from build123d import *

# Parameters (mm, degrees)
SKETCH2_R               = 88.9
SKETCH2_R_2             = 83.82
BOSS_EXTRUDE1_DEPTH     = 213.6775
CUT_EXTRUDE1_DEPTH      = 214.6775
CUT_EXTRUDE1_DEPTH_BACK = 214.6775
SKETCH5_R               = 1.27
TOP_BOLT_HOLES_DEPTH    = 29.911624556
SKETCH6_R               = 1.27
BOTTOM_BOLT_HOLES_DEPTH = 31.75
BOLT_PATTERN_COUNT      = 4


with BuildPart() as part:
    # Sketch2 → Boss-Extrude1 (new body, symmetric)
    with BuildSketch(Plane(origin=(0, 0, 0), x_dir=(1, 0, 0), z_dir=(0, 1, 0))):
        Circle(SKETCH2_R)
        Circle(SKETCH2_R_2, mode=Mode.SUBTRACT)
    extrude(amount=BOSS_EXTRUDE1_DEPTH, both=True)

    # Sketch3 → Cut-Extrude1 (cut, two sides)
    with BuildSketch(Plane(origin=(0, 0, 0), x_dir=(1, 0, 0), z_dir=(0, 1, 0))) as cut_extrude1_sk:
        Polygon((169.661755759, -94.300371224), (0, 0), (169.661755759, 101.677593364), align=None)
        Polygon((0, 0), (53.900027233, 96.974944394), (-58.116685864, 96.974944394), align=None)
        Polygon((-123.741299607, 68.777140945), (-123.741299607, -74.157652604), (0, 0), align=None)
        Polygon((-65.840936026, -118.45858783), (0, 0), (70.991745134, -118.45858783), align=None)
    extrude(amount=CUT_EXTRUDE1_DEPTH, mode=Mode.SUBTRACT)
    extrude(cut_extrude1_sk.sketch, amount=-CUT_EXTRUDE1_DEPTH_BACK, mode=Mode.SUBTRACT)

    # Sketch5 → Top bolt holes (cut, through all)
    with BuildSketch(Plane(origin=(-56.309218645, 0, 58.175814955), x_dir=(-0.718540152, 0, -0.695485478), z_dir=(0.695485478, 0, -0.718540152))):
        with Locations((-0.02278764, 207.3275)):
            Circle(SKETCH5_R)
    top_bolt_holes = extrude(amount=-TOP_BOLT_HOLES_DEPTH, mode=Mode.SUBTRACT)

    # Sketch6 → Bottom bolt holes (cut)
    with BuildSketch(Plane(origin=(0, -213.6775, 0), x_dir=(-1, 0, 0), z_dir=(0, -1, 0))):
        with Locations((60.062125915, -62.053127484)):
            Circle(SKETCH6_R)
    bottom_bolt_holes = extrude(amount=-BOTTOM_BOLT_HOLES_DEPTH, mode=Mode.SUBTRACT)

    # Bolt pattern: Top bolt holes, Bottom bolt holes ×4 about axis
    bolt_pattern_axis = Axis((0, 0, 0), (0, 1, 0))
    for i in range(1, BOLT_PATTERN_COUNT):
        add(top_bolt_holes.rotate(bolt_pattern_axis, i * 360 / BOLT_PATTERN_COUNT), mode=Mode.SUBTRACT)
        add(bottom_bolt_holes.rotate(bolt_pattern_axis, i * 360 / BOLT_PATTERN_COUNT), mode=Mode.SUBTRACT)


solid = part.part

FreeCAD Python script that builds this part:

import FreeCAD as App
import Part
import Sketcher

V = App.Vector
Q = App.Units.Quantity


def add_polygon(sketch, points):
    """Adds a closed chain of lines whose ends are joined by coincident constraints."""
    first, n = sketch.GeometryCount, len(points)
    for a, b in zip(points, points[1:] + points[:1]):
        sketch.addGeometry(Part.LineSegment(App.Vector(*a, 0), App.Vector(*b, 0)), False)
    for i in range(n):
        sketch.addConstraint(Sketcher.Constraint("Coincident", first + i, 2, first + (i + 1) % n, 1))

doc = App.newDocument("Part")
body = doc.addObject("PartDesign::Body", "Body")
body.AllowCompound = True

# Sketch on XZ plane
sketch1 = doc.addObject("Sketcher::SketchObject", "Sketch")
body.addObject(sketch1)
sketch1.AttachmentSupport = (doc.XZ_Plane, [""])
sketch1.MapMode = "FlatFace"
sketch1.addGeometry(Part.Circle(V(0, 0, 0), V(0, 0, 1), 89), False)
sketch1.addGeometry(Part.Circle(V(0, 0, 0), V(0, 0, 1), 84), False)
sketch1.addConstraint(Sketcher.Constraint("Coincident", 0, 3, -1, 1))
sketch1.addConstraint(Sketcher.Constraint("Coincident", 1, 3, -1, 1))
sketch1.addConstraint(Sketcher.Constraint("Diameter", 0, Q("7 in")))
sketch1.addConstraint(Sketcher.Constraint("Diameter", 1, Q("6.6 in")))
pad1 = doc.addObject("PartDesign::Pad", "Pad")
body.addObject(pad1)
pad1.Profile = sketch1
pad1.Length = Q("16.825 in")
pad1.Midplane = True

# Sketch on XZ plane
sketch2 = doc.addObject("Sketcher::SketchObject", "Sketch001")
body.addObject(sketch2)
sketch2.AttachmentSupport = (doc.XZ_Plane, [""])
sketch2.MapMode = "FlatFace"
add_polygon(sketch2, [(0, 0), (170, 94), (170, -102)])  # lines 0-2
add_polygon(sketch2, [(0, 0), (54, -97), (-58, -97)])  # lines 3-5
add_polygon(sketch2, [(-124, -69), (-124, 74), (0, 0)])  # lines 6-8
add_polygon(sketch2, [(0, 0), (-66, 118), (71, 118)])  # lines 9-11
sketch2.addConstraint(Sketcher.Constraint("Vertical", 1))
sketch2.addConstraint(Sketcher.Constraint("Horizontal", 4))
sketch2.addConstraint(Sketcher.Constraint("Vertical", 6))
sketch2.addConstraint(Sketcher.Constraint("Horizontal", 10))
sketch2.addConstraint(Sketcher.Constraint("Coincident", 2, 2, -1, 1))
sketch2.addConstraint(Sketcher.Constraint("Coincident", 5, 2, -1, 1))
sketch2.addConstraint(Sketcher.Constraint("Coincident", 7, 2, -1, 1))
sketch2.addConstraint(Sketcher.Constraint("Coincident", 11, 2, -1, 1))
sketch2.addConstraint(Sketcher.Constraint("Perpendicular", 0, 3))
sketch2.addConstraint(Sketcher.Constraint("Perpendicular", 2, 5))
sketch2.addConstraint(Sketcher.Constraint("Perpendicular", 5, 7))
sketch2.addConstraint(Sketcher.Constraint("Perpendicular", 3, 8))
sketch2.addConstraint(Sketcher.Constraint("Perpendicular", 8, 9))
sketch2.addConstraint(Sketcher.Constraint("Perpendicular", 7, 11))
sketch2.addConstraint(Sketcher.Constraint("DistanceX", 10, 1, 10, 2, Q("136.832681 mm")))
sketch2.addConstraint(Sketcher.Constraint("DistanceX", 6, 2, -1, 1, Q("123.7413 mm")))
sketch2.addConstraint(Sketcher.Constraint("Distance", 0, Q("194.107371 mm")))
sketch2.addConstraint(Sketcher.Constraint("Distance", 11, Q("138.102371 mm")))
sketch2.addConstraint(Sketcher.Constraint("DistanceX", 4, 2, 4, 1, Q("112.016713 mm")))
sketch2.addConstraint(Sketcher.Constraint("DistanceY", 1, 2, 1, 1, Q("195.977965 mm")))
pocket1 = doc.addObject("PartDesign::Pocket", "Pocket")
body.addObject(pocket1)
pocket1.Profile = sketch2
pocket1.Type = "ThroughAll"
pocket1.Midplane = True

# Sketch on an angled plane
sketch3 = doc.addObject("Sketcher::SketchObject", "Sketch002")
body.addObject(sketch3)
sketch3.Placement = App.Placement(V(-56.309219, 0, 58.175815), App.Rotation(V(-0.718540152, 0, -0.695485478), V(0, 1, 0), V(0.695485478, 0, -0.718540152), "ZXY"))
sketch3.addGeometry(Part.Circle(V(0, 207.3, 0), V(0, 0, 1), 1.3), False)
sketch3.addConstraint(Sketcher.Constraint("Diameter", 0, Q("0.1 in")))
sketch3.addConstraint(Sketcher.Constraint("DistanceY", -1, 1, 0, 3, Q("8.1625 in")))
sketch3.addConstraint(Sketcher.Constraint("DistanceX", 0, 3, -1, 1, Q("0.022788 mm")))
pocket2 = doc.addObject("PartDesign::Pocket", "Pocket001")
body.addObject(pocket2)
pocket2.Profile = sketch3
pocket2.Type = "ThroughAll"

# Sketch on XZ plane
sketch4 = doc.addObject("Sketcher::SketchObject", "Sketch003")
body.addObject(sketch4)
sketch4.AttachmentSupport = (doc.XZ_Plane, [""])
sketch4.MapMode = "FlatFace"
sketch4.AttachmentOffset = App.Placement(V(0, 0, 8.4125 * 25.4), App.Rotation())
sketch4.addGeometry(Part.Circle(V(-60.1, 62.1, 0), V(0, 0, 1), 1.3), False)
sketch4.addConstraint(Sketcher.Constraint("Diameter", 0, Q("0.1 in")))
sketch4.addConstraint(Sketcher.Constraint("DistanceX", 0, 3, -1, 1, Q("60.062126 mm")))
sketch4.addConstraint(Sketcher.Constraint("DistanceY", -1, 1, 0, 3, Q("62.053127 mm")))
pocket3 = doc.addObject("PartDesign::Pocket", "Pocket002")
body.addObject(pocket3)
pocket3.Profile = sketch4
pocket3.Length = Q("1.25 in")
doc.recompute()

polarpattern = doc.addObject("PartDesign::PolarPattern", "PolarPattern")
body.addObject(polarpattern)
polarpattern.Originals = [pocket2, pocket3]
polarpattern.Axis = (doc.Y_Axis, [""])
polarpattern.Angle = 360
polarpattern.Occurrences = 4
body.Tip = polarpattern

doc.recompute()
